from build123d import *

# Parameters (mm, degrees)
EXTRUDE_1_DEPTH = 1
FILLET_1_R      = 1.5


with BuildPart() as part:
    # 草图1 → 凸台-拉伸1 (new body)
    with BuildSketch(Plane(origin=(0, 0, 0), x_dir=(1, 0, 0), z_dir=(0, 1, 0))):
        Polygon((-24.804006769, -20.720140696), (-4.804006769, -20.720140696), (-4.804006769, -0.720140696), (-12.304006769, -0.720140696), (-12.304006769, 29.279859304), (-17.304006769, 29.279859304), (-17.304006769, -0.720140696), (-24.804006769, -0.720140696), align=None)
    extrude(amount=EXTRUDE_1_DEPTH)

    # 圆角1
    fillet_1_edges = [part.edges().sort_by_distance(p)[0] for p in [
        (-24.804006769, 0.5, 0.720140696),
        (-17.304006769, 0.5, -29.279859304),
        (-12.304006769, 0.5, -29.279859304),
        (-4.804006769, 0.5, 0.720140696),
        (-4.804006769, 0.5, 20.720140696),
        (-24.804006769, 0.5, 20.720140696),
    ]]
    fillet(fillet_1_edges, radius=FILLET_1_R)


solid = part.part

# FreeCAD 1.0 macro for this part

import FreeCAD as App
import Part
import Sketcher

V = App.Vector


def edges_at(feature, points):
    """Names of the edges that pass closest to the given points."""
    edges = feature.Shape.Edges
    near = lambda p: min(range(len(edges)), key=lambda i: edges[i].distToShape(Part.Vertex(*p))[0])
    return sorted({f"Edge{near(p) + 1}" for p in points})


def add_polygon(sketch, points):
    """Adds a closed chain of lines whose ends are joined by coincident constraints."""
    first, n = sketch.GeometryCount, len(points)
    for a, b in zip(points, points[1:] + points[:1]):
        sketch.addGeometry(Part.LineSegment(App.Vector(*a, 0), App.Vector(*b, 0)), False)
    for i in range(n):
        sketch.addConstraint(Sketcher.Constraint("Coincident", first + i, 2, first + (i + 1) % n, 1))

doc = App.newDocument("Part")
body = doc.addObject("PartDesign::Body", "Body")

sketch1 = doc.addObject("Sketcher::SketchObject", "Sketch")
body.addObject(sketch1)
sketch1.AttachmentSupport = (doc.XZ_Plane, [""])
sketch1.MapMode = "FlatFace"
add_polygon(sketch1, [(-25, 21), (-5, 21), (-5, 1), (-12, 1), (-12, -29), (-17, -29), (-17, 1), (-25, 1)])
sketch1.addConstraint([
    Sketcher.Constraint("Horizontal", 0),
    Sketcher.Constraint("Vertical", 1),
    Sketcher.Constraint("Horizontal", 2),
    Sketcher.Constraint("Vertical", 3),
    Sketcher.Constraint("Horizontal", 4),
    Sketcher.Constraint("Vertical", 5),
    Sketcher.Constraint("Horizontal", 6),
    Sketcher.Constraint("Vertical", 7),
    Sketcher.Constraint("Horizontal", 2, 2, 5, 2),
    Sketcher.Constraint("Equal", 2, 6),
    Sketcher.Constraint("Equal", 0, 1),
    Sketcher.Constraint("DistanceX", 0, 1, 0, 2, 20.0),
    Sketcher.Constraint("DistanceX", 4, 2, 4, 1, 5.0),
    Sketcher.Constraint("DistanceY", 3, 2, 3, 1, 30.0),
    Sketcher.Constraint("DistanceY", -1, 1, 0, 2, 20.720141),
    Sketcher.Constraint("DistanceX", 0, 2, -1, 1, 4.804007),
])
pad1 = doc.addObject("PartDesign::Pad", "Pad")
body.addObject(pad1)
pad1.Profile = sketch1
pad1.Length = 1
pad1.Reversed = True
doc.recompute()

fillet = doc.addObject("PartDesign::Fillet", "Fillet")
body.addObject(fillet)
fillet.Base = (pad1, edges_at(pad1, [
    (-24.804, 0.5, 0.72),
    (-17.304, 0.5, -29.28),
    (-12.304, 0.5, -29.28),
    (-4.804, 0.5, 0.72),
    (-4.804, 0.5, 20.72),
    (-24.804, 0.5, 20.72),
]))
fillet.Radius = 1.5

doc.recompute()
